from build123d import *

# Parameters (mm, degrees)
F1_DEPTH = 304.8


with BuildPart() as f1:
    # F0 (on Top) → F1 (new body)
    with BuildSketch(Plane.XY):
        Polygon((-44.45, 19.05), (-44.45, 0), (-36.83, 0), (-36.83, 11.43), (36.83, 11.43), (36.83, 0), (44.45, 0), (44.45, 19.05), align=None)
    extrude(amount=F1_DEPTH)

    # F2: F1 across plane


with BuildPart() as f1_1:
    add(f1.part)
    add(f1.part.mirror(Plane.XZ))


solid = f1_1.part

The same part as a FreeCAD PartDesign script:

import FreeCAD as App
import Part
import Sketcher
Q = App.Units.Quantity


def add_polygon(sketch, points):
    """Adds a closed chain of lines whose ends are joined by coincident constraints."""
    first, n = sketch.GeometryCount, len(points)
    for a, b in zip(points, points[1:] + points[:1]):
        sketch.addGeometry(Part.LineSegment(App.Vector(*a, 0), App.Vector(*b, 0)), False)
    for i in range(n):
        sketch.addConstraint(Sketcher.Constraint("Coincident", first + i, 2, first + (i + 1) % n, 1))

doc = App.newDocument("Part")
body = doc.addObject("PartDesign::Body", "Body")

# Sketch on XY plane
sketch1 = doc.addObject("Sketcher::SketchObject", "Sketch")
body.addObject(sketch1)
sketch1.AttachmentSupport = (doc.XY_Plane, [""])
sketch1.MapMode = "FlatFace"
add_polygon(sketch1, [(-44, 19), (-44, 0), (-37, 0), (-37, 11), (37, 11), (37, 0), (44, 0), (44, 19)])  # lines 0-7
sketch1.addConstraint([
    Sketcher.Constraint("Vertical", 0),
    Sketcher.Constraint("Horizontal", 1),
    Sketcher.Constraint("Vertical", 2),
    Sketcher.Constraint("Horizontal", 3),
    Sketcher.Constraint("Vertical", 4),
    Sketcher.Constraint("Horizontal", 5),
    Sketcher.Constraint("Vertical", 6),
    Sketcher.Constraint("Horizontal", 7),
    Sketcher.Constraint("Symmetric", 1, 2, 4, 2, -1, 1),
    Sketcher.Constraint("Symmetric", 0, 2, 5, 2, -2),
    Sketcher.Constraint("DistanceX", 1, 1, 1, 2, Q("0.3 in")),
    Sketcher.Constraint("DistanceX", 3, 1, 3, 2, Q("2.9 in")),
    Sketcher.Constraint("DistanceY", 0, 2, 0, 1, Q("0.75 in")),
    Sketcher.Constraint("DistanceY", 2, 1, 2, 2, Q("0.45 in")),
])
pad1 = doc.addObject("PartDesign::Pad", "Pad")
body.addObject(pad1)
pad1.Profile = sketch1
pad1.Length = Q("12 in")
body2 = doc.addObject("PartDesign::Body", "Body001")
doc.recompute()

body2.BaseFeature = body
doc.recompute()

mirroring = doc.addObject("Part::Mirroring", "Mirroring")
mirroring.Source = body
mirroring.Base = App.Vector(0, 0, 0)
mirroring.Normal = App.Vector(0, -1, 0)
body3 = doc.addObject("PartDesign::Body", "Body002")
body3.BaseFeature = mirroring
boolean = doc.addObject("PartDesign::Boolean", "Boolean")
body2.addObject(boolean)
boolean.Type = "Fuse"
boolean.addObjects([body3])
doc.recompute()
mirroring.Visibility = False

doc.recompute()
